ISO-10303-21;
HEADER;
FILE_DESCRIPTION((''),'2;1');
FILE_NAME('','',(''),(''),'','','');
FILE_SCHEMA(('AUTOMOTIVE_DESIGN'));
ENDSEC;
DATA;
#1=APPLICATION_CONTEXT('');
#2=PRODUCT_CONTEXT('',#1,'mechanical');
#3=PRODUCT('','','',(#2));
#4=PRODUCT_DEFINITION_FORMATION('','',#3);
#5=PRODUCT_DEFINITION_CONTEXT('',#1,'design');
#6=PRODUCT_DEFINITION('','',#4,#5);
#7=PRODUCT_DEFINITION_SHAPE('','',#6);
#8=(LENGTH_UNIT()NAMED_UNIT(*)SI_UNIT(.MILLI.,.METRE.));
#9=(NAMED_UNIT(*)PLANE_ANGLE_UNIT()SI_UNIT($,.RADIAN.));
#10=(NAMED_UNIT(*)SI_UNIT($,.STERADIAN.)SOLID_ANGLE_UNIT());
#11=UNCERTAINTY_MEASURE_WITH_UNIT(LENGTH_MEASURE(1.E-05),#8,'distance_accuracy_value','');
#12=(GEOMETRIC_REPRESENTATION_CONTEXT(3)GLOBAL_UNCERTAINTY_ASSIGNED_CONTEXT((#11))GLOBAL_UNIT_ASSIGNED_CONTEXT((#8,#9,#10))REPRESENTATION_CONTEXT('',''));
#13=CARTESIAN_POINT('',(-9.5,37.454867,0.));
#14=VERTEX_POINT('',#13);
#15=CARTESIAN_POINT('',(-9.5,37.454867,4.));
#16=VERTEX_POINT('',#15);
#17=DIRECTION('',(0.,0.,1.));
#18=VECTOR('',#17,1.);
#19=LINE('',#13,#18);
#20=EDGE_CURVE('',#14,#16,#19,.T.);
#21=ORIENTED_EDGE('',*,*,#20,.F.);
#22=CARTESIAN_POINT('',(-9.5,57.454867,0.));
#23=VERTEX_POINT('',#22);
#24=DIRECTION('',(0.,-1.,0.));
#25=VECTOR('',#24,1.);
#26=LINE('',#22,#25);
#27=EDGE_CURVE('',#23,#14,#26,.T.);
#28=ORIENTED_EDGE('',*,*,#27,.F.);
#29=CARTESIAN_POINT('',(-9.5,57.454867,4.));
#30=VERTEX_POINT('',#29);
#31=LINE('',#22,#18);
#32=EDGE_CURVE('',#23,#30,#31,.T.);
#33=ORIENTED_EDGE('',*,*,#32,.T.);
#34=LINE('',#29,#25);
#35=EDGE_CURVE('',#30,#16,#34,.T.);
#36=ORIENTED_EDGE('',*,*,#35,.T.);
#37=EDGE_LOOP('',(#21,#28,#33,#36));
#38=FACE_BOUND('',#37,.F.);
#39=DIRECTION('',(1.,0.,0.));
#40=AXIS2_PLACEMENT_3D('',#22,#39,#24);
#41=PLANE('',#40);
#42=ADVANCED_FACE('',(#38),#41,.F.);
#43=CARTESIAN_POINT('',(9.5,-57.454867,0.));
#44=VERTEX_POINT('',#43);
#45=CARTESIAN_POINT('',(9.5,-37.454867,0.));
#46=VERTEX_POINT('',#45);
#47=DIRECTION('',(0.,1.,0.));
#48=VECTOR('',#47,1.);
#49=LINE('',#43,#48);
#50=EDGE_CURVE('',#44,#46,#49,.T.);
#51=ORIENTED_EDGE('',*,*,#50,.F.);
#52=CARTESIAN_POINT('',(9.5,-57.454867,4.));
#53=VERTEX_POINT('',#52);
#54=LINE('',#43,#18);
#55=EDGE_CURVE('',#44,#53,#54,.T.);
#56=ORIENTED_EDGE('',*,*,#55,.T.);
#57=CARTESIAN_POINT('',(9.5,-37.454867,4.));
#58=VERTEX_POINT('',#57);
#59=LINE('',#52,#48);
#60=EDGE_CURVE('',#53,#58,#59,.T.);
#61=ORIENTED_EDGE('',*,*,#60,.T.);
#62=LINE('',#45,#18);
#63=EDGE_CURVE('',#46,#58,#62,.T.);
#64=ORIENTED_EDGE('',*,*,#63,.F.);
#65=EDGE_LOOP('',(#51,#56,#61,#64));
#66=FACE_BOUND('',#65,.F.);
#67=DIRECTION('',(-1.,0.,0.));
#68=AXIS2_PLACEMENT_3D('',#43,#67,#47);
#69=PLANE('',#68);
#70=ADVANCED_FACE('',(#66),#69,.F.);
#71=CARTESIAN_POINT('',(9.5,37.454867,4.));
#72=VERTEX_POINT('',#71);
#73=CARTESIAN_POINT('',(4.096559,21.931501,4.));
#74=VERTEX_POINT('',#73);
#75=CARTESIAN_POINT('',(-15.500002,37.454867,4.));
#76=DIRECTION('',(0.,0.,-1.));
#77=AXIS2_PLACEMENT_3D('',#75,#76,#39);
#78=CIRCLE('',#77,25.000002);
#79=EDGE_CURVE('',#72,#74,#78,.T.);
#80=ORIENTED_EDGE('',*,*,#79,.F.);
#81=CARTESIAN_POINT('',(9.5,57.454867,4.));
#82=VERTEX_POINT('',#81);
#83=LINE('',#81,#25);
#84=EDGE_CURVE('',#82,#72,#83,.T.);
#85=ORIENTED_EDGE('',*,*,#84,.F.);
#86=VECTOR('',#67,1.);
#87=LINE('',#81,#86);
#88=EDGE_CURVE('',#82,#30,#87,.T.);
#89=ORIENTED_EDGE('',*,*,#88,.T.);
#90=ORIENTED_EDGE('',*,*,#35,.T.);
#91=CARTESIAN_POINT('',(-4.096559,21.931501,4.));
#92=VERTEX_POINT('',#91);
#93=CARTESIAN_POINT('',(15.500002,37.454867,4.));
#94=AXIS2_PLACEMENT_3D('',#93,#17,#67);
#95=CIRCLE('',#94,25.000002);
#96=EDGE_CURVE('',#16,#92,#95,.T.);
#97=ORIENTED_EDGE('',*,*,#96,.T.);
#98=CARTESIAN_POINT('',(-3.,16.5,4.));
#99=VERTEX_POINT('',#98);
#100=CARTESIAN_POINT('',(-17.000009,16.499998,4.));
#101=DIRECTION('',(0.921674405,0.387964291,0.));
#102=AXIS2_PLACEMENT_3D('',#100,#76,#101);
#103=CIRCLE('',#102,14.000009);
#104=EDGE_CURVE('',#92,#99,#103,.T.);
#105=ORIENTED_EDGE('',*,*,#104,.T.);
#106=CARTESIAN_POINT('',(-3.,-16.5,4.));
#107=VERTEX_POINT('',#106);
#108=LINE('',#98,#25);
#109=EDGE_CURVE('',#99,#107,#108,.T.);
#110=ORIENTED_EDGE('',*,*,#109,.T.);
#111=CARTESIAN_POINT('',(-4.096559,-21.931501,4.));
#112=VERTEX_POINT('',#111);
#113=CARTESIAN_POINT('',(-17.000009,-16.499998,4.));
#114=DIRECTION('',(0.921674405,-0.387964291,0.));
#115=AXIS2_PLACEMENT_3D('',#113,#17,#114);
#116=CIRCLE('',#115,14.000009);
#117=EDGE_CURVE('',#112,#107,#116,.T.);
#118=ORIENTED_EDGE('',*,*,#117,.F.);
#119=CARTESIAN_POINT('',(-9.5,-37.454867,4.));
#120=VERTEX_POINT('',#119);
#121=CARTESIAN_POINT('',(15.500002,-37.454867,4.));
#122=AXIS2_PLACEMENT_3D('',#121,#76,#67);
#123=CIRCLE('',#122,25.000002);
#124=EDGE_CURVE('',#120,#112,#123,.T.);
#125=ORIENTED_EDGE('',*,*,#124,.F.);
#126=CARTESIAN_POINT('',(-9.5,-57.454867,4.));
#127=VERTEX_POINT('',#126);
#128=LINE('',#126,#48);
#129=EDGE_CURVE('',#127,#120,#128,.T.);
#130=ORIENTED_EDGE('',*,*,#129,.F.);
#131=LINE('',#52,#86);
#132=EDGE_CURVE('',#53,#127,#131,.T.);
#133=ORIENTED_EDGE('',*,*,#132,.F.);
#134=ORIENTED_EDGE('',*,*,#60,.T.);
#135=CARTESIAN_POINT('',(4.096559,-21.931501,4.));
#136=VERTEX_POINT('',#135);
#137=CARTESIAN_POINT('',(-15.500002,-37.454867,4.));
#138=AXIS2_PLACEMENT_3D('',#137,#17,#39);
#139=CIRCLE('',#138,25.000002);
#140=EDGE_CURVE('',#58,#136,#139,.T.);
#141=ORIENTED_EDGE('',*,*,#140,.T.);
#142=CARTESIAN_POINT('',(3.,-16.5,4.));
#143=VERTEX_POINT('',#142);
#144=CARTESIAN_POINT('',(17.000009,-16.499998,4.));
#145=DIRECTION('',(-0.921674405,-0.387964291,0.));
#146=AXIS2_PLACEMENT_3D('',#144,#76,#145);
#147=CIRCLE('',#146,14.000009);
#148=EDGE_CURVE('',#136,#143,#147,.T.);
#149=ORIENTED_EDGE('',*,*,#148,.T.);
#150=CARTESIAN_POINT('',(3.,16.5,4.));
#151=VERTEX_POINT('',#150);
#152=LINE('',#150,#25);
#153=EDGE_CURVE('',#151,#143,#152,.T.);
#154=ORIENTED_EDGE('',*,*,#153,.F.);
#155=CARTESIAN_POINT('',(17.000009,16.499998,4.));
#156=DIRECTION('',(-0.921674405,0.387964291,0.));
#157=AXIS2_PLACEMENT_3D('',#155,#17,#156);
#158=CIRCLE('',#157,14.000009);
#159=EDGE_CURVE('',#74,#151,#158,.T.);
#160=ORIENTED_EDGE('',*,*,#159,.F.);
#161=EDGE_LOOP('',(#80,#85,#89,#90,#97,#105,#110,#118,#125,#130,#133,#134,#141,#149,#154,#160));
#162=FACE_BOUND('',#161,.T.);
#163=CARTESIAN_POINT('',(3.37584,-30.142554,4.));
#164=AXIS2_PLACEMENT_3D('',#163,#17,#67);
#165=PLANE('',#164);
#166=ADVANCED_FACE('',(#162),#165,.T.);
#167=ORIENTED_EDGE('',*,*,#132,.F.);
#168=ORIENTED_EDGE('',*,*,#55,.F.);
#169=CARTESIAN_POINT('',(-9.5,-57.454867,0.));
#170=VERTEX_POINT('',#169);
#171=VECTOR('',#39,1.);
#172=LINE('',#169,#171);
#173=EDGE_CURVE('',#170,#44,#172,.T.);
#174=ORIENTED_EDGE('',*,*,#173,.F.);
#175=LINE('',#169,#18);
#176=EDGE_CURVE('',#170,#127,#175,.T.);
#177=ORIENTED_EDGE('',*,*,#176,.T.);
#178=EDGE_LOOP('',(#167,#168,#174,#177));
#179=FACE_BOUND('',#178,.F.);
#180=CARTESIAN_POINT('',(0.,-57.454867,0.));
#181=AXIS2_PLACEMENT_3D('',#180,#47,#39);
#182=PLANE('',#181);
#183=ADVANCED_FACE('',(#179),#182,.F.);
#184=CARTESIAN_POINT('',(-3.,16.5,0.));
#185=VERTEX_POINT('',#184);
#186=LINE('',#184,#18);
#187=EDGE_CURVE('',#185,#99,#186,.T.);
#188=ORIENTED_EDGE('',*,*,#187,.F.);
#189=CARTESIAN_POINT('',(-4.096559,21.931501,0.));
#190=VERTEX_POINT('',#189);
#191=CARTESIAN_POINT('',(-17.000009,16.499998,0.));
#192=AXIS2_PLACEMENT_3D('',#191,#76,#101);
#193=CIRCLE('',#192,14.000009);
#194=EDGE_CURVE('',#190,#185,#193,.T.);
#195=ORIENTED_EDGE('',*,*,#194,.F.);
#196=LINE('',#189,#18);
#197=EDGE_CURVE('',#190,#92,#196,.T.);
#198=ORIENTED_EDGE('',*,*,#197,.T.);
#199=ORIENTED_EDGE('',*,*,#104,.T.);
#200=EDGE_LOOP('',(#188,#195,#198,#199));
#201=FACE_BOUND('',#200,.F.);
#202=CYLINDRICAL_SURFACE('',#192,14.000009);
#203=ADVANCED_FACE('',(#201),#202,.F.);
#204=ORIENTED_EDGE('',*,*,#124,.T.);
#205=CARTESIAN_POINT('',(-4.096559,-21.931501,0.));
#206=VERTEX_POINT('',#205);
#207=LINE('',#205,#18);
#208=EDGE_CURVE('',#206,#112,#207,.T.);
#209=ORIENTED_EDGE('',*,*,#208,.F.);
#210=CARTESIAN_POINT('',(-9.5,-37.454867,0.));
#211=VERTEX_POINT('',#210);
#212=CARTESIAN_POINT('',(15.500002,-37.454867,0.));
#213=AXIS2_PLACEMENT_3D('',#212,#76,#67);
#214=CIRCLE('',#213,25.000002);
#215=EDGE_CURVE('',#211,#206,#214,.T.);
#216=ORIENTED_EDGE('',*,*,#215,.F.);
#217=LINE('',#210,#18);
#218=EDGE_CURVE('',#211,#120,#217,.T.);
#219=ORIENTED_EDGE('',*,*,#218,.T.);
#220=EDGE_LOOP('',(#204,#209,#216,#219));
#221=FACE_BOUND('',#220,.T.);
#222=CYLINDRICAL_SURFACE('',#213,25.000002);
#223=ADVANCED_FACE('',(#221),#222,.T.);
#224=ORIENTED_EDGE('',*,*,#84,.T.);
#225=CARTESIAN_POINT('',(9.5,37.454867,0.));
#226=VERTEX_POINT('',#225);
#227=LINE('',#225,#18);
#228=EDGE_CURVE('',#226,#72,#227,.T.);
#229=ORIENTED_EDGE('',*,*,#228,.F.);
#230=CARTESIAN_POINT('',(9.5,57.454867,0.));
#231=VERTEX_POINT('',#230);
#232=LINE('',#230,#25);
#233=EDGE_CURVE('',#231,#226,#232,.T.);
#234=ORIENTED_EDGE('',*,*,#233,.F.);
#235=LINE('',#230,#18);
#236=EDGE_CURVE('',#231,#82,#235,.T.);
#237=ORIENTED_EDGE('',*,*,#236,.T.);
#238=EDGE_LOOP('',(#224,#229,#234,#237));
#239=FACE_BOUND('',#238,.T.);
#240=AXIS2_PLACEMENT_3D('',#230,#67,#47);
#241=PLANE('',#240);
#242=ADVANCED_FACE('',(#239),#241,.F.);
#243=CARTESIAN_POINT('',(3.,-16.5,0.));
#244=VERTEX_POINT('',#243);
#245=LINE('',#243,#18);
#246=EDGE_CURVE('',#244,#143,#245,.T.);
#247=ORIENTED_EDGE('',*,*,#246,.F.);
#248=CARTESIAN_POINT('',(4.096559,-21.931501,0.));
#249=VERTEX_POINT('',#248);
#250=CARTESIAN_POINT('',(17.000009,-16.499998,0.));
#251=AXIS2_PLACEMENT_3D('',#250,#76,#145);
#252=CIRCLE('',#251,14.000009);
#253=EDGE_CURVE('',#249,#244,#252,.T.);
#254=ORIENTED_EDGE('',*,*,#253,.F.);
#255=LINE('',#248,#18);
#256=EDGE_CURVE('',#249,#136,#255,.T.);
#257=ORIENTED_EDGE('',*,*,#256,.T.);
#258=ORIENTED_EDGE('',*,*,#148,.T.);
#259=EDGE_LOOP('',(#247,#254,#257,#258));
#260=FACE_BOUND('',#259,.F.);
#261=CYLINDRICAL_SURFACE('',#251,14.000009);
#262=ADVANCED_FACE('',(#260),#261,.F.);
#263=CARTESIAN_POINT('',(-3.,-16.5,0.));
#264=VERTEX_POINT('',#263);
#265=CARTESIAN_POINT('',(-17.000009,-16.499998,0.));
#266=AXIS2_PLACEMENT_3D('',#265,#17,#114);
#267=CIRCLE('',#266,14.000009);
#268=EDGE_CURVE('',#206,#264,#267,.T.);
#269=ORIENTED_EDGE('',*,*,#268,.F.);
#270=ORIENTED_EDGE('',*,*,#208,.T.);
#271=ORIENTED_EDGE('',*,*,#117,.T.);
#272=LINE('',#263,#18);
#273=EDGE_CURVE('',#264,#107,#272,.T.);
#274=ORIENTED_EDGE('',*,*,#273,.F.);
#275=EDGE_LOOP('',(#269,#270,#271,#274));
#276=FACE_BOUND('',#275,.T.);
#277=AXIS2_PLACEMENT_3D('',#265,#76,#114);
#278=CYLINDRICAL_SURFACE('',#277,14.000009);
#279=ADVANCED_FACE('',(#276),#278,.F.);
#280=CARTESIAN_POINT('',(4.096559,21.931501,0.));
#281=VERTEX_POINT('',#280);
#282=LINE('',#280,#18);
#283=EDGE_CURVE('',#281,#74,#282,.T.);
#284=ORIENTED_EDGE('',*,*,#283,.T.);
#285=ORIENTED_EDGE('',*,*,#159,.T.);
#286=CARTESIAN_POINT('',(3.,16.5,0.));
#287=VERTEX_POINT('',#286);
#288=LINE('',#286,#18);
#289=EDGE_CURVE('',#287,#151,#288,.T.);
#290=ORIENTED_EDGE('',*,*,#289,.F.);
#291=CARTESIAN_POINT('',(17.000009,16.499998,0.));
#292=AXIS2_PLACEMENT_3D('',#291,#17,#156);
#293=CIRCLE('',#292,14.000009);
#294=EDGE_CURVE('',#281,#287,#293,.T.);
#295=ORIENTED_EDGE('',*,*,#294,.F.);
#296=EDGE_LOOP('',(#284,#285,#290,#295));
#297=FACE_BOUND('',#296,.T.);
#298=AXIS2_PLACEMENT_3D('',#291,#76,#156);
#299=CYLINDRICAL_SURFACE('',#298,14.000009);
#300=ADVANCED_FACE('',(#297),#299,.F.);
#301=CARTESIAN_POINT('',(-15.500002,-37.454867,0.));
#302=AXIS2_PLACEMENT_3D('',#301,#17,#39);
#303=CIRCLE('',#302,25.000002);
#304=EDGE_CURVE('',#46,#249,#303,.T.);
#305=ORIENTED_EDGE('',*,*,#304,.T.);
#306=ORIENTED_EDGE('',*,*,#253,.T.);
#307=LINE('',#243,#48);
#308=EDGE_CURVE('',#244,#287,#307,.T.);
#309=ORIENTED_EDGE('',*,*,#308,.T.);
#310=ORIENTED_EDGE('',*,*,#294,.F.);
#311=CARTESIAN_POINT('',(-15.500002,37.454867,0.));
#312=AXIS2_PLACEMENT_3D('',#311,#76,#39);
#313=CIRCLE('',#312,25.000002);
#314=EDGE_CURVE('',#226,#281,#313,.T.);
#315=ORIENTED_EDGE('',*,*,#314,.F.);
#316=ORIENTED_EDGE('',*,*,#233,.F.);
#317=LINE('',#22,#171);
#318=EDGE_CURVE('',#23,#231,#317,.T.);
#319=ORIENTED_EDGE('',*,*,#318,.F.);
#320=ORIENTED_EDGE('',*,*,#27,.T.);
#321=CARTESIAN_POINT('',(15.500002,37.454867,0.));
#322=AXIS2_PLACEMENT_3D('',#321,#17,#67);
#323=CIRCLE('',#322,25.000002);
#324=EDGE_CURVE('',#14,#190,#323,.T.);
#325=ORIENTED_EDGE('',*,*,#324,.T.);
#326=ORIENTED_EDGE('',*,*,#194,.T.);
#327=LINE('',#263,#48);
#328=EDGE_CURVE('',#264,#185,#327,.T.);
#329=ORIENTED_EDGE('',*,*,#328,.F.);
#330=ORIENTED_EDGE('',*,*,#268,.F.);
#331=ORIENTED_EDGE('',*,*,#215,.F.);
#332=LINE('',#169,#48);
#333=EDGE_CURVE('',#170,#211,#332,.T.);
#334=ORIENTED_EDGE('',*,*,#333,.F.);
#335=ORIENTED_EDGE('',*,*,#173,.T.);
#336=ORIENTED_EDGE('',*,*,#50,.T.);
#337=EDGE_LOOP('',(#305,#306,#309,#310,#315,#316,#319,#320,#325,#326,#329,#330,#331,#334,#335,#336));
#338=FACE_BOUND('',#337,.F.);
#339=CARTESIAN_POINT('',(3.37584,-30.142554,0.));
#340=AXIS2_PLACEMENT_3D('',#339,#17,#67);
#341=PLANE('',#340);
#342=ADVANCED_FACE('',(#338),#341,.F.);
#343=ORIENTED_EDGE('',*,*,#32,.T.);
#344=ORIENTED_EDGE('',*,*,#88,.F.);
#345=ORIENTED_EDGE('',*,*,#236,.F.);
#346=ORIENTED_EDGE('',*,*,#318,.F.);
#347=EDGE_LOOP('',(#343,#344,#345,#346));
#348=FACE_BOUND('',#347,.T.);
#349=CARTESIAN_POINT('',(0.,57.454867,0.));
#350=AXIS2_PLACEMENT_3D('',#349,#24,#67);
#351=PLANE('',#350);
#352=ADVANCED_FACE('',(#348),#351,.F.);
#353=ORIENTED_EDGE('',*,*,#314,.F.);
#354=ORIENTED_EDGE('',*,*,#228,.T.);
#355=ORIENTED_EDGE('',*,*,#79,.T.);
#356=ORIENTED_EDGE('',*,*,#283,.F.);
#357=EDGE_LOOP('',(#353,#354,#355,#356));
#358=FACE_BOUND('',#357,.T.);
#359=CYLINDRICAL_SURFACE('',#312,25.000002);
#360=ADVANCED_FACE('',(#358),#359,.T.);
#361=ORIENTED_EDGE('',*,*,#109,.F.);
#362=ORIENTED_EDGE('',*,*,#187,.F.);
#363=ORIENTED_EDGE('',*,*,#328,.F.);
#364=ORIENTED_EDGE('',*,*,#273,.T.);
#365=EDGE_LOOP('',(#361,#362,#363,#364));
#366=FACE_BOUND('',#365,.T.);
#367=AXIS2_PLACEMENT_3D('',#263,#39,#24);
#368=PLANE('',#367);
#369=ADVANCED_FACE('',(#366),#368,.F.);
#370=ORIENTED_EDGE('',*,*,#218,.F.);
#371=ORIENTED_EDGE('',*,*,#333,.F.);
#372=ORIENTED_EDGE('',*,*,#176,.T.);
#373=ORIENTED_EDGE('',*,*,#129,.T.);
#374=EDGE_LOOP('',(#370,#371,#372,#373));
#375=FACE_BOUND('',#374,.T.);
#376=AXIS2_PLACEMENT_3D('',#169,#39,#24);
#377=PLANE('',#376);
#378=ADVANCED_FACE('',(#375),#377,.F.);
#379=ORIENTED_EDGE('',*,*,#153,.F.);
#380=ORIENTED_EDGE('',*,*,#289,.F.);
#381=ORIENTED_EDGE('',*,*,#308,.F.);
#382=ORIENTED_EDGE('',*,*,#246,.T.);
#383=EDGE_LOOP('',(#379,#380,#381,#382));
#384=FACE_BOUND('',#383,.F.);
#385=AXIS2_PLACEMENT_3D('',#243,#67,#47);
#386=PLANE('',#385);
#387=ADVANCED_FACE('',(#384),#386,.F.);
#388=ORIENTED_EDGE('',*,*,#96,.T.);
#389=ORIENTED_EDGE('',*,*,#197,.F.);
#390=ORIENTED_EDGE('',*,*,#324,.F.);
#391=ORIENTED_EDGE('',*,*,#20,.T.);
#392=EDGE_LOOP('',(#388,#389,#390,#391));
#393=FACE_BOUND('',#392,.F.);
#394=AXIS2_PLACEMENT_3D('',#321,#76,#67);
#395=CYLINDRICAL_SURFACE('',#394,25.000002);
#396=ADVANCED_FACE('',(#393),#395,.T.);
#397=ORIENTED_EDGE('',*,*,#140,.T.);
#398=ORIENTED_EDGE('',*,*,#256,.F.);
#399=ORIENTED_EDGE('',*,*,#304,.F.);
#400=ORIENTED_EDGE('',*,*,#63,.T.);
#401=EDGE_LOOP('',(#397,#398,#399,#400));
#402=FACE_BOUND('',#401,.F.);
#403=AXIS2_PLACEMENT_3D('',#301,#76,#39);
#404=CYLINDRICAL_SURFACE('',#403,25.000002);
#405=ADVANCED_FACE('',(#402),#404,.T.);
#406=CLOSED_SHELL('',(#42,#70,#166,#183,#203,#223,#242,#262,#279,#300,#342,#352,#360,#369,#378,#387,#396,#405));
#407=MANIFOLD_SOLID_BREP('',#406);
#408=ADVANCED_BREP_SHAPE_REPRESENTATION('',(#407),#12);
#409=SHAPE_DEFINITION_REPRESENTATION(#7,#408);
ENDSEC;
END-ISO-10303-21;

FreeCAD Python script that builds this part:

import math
import FreeCAD as App
import Part
import Sketcher

V = App.Vector
Q = App.Units.Quantity

doc = App.newDocument("Part")
body = doc.addObject("PartDesign::Body", "Body")

sketch1 = doc.addObject("Sketcher::SketchObject", "Sketch")
body.addObject(sketch1)
sketch1.AttachmentSupport = (doc.XY_Plane, [""])
sketch1.MapMode = "FlatFace"
sketch1.addGeometry(Part.LineSegment(V(-9.5, 57.5, 0), V(-9.5, 37.5, 0)), False)
sketch1.addGeometry(Part.ArcOfCircle(Part.Circle(V(15.5, 37.5, 0), V(0, 0, 1), 25), math.radians(-180), math.radians(-142)), False)
sketch1.addGeometry(Part.ArcOfCircle(Part.Circle(V(-17, 16.5, 0), V(0, 0, 1), 14), math.radians(0), math.radians(23)), False)
sketch1.addGeometry(Part.LineSegment(V(-3, 16.5, 0), V(-3, 0, 0)), False)
sketch1.addGeometry(Part.LineSegment(V(-3, 0, 0), V(0, 0, 0)), False)
sketch1.addGeometry(Part.LineSegment(V(0, 0, 0), V(0, 57.5, 0)), False)
sketch1.addGeometry(Part.LineSegment(V(0, 57.5, 0), V(-9.5, 57.5, 0)), False)
sketch1.addConstraint(Sketcher.Constraint("Tangent", 0, 2, 1, 1))
sketch1.addConstraint(Sketcher.Constraint("Coincident", 1, 2, 2, 2))
sketch1.addConstraint(Sketcher.Constraint("Tangent", 2, 1, 3, 1))
sketch1.addConstraint(Sketcher.Constraint("Coincident", 3, 2, 4, 1))
sketch1.addConstraint(Sketcher.Constraint("Coincident", 4, 2, 5, 1))
sketch1.addConstraint(Sketcher.Constraint("Coincident", 5, 2, 6, 1))
sketch1.addConstraint(Sketcher.Constraint("Coincident", 6, 2, 0, 1))
sketch1.addConstraint(Sketcher.Constraint("Vertical", 0))
sketch1.addConstraint(Sketcher.Constraint("Vertical", 3))
sketch1.addConstraint(Sketcher.Constraint("Horizontal", 4))
sketch1.addConstraint(Sketcher.Constraint("Vertical", 5))
sketch1.addConstraint(Sketcher.Constraint("Horizontal", 6))
sketch1.addConstraint(Sketcher.Constraint("Coincident", 4, 2, -1, 1))
sketch1.addConstraint(Sketcher.Constraint("Radius", 1, Q("25.000002 mm")))
sketch1.addConstraint(Sketcher.Constraint("DistanceX", 4, 1, 4, 2, Q("3 mm")))
sketch1.addConstraint(Sketcher.Constraint("DistanceY", 0, 2, 0, 1, Q("20 mm")))
sketch1.addConstraint(Sketcher.Constraint("DistanceX", 6, 2, 6, 1, Q("9.5 mm")))
sketch1.addConstraint(Sketcher.Constraint("DistanceY", 3, 2, 3, 1, Q("16.5 mm")))
sketch1.addConstraint(Sketcher.Constraint("Radius", 2, Q("14.000009 mm")))
sketch1.addConstraint(Sketcher.Constraint("DistanceY", -1, 1, 1, 2, Q("21.931501 mm")))
pad1 = doc.addObject("PartDesign::Pad", "Pad")
body.addObject(pad1)
pad1.Profile = sketch1
pad1.Length = 4
body2 = doc.addObject("PartDesign::Body", "Body001")
doc.recompute()

body2.BaseFeature = body
doc.recompute()

mirroring = doc.addObject("Part::Mirroring", "Mirroring")
mirroring.Source = body
mirroring.Base = V(-1.5, 0, 2)
mirroring.Normal = V(0, -1, 0)
body3 = doc.addObject("PartDesign::Body", "Body002")
body3.BaseFeature = mirroring
boolean = doc.addObject("PartDesign::Boolean", "Boolean")
body2.addObject(boolean)
boolean.Type = "Fuse"
boolean.addObjects([body3])
doc.recompute()
body4 = doc.addObject("PartDesign::Body", "Body003")
doc.recompute()

body4.BaseFeature = body2
doc.recompute()

mirroring2 = doc.addObject("Part::Mirroring", "Mirroring001")
mirroring2.Source = body2
mirroring2.Base = V(0, 0, 2)
mirroring2.Normal = V(1, 0, 0)
body5 = doc.addObject("PartDesign::Body", "Body004")
body5.BaseFeature = mirroring2
boolean2 = doc.addObject("PartDesign::Boolean", "Boolean001")
body4.addObject(boolean2)
boolean2.Type = "Fuse"
boolean2.addObjects([body5])
doc.recompute()
mirroring.Visibility = False
mirroring2.Visibility = False

doc.recompute()
